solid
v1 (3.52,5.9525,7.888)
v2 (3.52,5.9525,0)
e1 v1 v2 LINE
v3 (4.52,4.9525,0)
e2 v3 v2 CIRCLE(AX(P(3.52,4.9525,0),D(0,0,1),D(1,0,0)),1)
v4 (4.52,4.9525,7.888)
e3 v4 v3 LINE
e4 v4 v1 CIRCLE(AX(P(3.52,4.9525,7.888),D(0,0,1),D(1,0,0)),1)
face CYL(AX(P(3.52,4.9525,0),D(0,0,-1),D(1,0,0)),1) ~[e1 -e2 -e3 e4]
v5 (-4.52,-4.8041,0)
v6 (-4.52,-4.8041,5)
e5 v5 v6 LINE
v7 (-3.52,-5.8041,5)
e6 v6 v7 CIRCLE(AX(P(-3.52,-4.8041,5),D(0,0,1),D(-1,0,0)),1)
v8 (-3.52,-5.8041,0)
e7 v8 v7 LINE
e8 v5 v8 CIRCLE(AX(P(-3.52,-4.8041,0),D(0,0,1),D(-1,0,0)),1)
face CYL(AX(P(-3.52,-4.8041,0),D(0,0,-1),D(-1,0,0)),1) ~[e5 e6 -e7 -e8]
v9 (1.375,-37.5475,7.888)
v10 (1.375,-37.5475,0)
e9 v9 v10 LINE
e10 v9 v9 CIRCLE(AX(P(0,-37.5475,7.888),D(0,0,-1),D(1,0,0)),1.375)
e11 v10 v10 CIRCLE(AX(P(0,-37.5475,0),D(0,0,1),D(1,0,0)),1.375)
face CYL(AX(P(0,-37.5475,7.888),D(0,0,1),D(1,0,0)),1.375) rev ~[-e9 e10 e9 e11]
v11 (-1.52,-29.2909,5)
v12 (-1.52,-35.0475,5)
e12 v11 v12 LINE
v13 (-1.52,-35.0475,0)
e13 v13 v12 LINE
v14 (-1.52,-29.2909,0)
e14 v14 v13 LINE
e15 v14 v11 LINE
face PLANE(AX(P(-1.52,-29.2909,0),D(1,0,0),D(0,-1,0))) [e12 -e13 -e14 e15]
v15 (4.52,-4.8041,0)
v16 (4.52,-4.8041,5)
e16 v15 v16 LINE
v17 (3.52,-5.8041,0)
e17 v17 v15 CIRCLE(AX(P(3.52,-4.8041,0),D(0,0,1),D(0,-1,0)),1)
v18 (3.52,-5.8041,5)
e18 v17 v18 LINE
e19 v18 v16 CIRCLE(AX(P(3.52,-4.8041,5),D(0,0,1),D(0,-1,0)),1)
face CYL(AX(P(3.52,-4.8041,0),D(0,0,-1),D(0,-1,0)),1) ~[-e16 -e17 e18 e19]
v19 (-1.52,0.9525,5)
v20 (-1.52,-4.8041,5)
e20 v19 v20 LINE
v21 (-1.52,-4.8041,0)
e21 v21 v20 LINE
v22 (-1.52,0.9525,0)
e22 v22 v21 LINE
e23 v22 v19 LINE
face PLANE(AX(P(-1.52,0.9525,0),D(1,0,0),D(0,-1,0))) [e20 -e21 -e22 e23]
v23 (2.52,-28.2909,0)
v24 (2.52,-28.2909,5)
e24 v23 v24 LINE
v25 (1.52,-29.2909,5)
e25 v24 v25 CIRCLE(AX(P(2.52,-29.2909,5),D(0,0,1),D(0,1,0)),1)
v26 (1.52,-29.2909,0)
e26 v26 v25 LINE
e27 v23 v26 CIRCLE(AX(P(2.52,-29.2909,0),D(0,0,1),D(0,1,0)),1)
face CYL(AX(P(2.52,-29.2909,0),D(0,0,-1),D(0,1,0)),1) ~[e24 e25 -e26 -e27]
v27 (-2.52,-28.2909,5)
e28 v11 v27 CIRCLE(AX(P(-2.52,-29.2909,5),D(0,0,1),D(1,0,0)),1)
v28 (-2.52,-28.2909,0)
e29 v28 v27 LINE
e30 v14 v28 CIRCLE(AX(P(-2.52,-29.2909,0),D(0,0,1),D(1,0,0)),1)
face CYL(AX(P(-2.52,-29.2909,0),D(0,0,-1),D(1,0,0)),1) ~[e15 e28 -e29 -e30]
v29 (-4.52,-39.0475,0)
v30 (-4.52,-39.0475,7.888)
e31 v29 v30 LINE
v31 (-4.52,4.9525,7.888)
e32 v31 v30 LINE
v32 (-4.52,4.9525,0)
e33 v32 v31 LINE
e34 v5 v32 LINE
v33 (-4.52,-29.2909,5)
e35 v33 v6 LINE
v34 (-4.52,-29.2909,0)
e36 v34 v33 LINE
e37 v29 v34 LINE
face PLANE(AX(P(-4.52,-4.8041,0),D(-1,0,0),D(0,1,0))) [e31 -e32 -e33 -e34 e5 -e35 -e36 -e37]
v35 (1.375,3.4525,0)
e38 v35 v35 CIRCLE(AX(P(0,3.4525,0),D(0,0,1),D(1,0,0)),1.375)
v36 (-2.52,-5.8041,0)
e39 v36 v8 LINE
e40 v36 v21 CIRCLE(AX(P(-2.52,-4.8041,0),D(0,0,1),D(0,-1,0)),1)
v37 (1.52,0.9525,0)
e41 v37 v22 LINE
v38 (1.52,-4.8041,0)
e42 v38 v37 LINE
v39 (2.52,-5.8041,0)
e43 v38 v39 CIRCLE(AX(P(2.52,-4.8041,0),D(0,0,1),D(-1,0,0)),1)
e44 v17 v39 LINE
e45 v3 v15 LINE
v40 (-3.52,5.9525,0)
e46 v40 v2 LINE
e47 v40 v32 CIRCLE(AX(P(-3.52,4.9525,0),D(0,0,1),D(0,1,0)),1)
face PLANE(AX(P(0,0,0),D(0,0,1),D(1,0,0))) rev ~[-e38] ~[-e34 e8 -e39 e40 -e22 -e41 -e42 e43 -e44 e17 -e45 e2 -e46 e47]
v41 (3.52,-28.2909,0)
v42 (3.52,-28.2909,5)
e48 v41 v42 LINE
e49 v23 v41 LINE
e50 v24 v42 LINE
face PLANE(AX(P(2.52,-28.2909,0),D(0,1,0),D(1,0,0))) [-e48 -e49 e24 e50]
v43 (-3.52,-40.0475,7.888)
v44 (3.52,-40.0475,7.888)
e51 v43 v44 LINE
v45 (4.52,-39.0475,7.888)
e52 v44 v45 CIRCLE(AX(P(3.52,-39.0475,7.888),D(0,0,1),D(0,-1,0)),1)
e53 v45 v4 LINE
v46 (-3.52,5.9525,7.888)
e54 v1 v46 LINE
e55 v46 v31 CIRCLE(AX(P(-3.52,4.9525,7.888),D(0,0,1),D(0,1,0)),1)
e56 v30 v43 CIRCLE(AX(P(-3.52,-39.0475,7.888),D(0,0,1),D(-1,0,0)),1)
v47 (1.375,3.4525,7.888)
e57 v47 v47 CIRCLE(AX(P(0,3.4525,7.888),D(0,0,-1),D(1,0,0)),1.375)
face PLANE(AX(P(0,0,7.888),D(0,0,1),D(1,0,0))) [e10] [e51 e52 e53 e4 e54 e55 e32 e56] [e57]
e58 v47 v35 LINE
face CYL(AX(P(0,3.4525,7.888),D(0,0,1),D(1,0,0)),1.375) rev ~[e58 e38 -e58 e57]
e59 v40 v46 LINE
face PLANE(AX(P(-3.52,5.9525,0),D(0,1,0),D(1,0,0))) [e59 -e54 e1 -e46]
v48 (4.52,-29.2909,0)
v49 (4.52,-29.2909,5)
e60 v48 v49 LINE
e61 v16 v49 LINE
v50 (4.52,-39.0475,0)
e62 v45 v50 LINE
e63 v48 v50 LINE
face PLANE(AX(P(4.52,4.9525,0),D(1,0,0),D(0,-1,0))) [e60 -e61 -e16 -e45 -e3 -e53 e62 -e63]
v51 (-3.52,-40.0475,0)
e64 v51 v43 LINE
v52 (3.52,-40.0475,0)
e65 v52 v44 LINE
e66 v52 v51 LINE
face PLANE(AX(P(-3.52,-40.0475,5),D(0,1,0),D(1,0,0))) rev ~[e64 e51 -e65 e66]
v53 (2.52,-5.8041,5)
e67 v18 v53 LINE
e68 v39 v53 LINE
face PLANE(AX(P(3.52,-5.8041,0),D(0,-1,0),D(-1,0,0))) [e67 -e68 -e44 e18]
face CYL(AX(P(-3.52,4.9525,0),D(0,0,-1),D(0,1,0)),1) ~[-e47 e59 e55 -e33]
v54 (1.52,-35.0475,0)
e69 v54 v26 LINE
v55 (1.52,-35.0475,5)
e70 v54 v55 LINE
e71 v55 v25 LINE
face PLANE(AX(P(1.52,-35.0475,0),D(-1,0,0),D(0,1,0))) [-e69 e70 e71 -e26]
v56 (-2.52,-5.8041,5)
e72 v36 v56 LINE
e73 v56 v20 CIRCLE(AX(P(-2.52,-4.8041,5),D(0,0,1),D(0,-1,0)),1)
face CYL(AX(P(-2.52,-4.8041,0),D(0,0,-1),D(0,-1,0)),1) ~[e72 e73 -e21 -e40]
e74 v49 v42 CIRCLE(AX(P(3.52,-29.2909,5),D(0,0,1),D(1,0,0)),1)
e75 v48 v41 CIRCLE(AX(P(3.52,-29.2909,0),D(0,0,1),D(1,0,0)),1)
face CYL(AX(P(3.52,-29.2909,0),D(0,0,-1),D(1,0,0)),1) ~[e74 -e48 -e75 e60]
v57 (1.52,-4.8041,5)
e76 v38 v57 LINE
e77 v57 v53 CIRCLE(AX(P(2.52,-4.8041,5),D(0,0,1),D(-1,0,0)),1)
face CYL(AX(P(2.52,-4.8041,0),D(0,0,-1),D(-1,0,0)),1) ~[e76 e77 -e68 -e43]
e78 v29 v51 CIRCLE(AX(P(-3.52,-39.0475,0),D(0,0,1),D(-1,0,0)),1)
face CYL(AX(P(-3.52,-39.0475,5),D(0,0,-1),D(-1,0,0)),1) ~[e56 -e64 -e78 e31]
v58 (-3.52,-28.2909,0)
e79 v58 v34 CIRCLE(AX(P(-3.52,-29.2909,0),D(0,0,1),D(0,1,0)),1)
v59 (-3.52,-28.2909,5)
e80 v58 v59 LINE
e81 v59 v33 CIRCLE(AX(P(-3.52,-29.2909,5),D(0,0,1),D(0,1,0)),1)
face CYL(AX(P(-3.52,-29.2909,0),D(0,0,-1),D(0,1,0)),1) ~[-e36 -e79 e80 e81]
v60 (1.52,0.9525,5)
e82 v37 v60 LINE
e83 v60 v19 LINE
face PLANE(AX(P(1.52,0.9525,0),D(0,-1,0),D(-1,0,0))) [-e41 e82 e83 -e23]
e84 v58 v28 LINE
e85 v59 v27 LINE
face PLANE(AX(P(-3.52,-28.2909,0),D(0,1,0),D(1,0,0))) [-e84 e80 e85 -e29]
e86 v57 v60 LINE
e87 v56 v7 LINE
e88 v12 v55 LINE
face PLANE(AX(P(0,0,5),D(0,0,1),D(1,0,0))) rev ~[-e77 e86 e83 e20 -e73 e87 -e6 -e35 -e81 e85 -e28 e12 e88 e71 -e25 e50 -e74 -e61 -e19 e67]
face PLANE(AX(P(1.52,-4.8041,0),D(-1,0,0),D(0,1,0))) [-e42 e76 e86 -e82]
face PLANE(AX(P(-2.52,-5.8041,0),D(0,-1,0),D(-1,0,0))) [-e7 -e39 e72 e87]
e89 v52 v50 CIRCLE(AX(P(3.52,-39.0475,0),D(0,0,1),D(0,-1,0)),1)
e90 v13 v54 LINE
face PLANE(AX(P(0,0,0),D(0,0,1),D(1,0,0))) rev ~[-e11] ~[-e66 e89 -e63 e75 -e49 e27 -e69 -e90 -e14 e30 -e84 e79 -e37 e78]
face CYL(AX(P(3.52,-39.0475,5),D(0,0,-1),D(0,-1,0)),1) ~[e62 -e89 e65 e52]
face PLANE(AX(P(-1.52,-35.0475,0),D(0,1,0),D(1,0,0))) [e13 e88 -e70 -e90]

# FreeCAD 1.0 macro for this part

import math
import FreeCAD as App
import Part
import Sketcher

V = App.Vector
Q = App.Units.Quantity

doc = App.newDocument("Part")
body = doc.addObject("PartDesign::Body", "Body")
body.AllowCompound = True

# Sketch on XY plane
sketch1 = body.newObject("Sketcher::SketchObject", "Sketch")
sketch1.AttachmentSupport = (doc.getObject("XY_Plane"), [""])
sketch1.MapMode = "FlatFace"
sketch1.addGeometry(Part.LineSegment(V(3.5, 6, 0), V(-3.5, 6, 0)), False)
sketch1.addGeometry(Part.ArcOfCircle(Part.Circle(V(-3.5, 5, 0), V(0, 0, 1), 1), math.radians(90), math.radians(180)), False)
sketch1.addGeometry(Part.LineSegment(V(-4.5, 5, 0), V(-4.5, -4.8, 0)), False)
sketch1.addGeometry(Part.ArcOfCircle(Part.Circle(V(-3.5, -4.8, 0), V(0, 0, 1), 1), math.radians(180), math.radians(270)), False)
sketch1.addGeometry(Part.LineSegment(V(-3.5, -5.8, 0), V(-2.5, -5.8, 0)), False)
sketch1.addGeometry(Part.ArcOfCircle(Part.Circle(V(-2.5, -4.8, 0), V(0, 0, 1), 1), math.radians(-90), math.radians(0)), False)
sketch1.addGeometry(Part.LineSegment(V(-1.5, -4.8, 0), V(-1.5, 1, 0)), False)
sketch1.addGeometry(Part.LineSegment(V(-1.5, 1, 0), V(1.5, 1, 0)), False)
sketch1.addGeometry(Part.LineSegment(V(1.5, 1, 0), V(1.5, -4.8, 0)), False)
sketch1.addGeometry(Part.ArcOfCircle(Part.Circle(V(2.5, -4.8, 0), V(0, 0, 1), 1), math.radians(180), math.radians(270)), False)
sketch1.addGeometry(Part.LineSegment(V(2.5, -5.8, 0), V(3.5, -5.8, 0)), False)
sketch1.addGeometry(Part.ArcOfCircle(Part.Circle(V(3.5, -4.8, 0), V(0, 0, 1), 1), math.radians(-90), math.radians(0)), False)
sketch1.addGeometry(Part.LineSegment(V(4.5, -4.8, 0), V(4.5, 5, 0)), False)
sketch1.addGeometry(Part.ArcOfCircle(Part.Circle(V(3.5, 5, 0), V(0, 0, 1), 1), math.radians(0), math.radians(90)), False)
sketch1.addGeometry(Part.LineSegment(V(3.5, -28.3, 0), V(2.5, -28.3, 0)), False)
sketch1.addGeometry(Part.ArcOfCircle(Part.Circle(V(2.5, -29.3, 0), V(0, 0, 1), 1), math.radians(90), math.radians(180)), False)
sketch1.addGeometry(Part.LineSegment(V(1.5, -29.3, 0), V(1.5, -35, 0)), False)
sketch1.addGeometry(Part.LineSegment(V(1.5, -35, 0), V(-1.5, -35, 0)), False)
sketch1.addGeometry(Part.LineSegment(V(-1.5, -35, 0), V(-1.5, -29.3, 0)), False)
sketch1.addGeometry(Part.ArcOfCircle(Part.Circle(V(-2.5, -29.3, 0), V(0, 0, 1), 1), math.radians(0), math.radians(90)), False)
sketch1.addGeometry(Part.LineSegment(V(-2.5, -28.3, 0), V(-3.5, -28.3, 0)), False)
sketch1.addGeometry(Part.ArcOfCircle(Part.Circle(V(-3.5, -29.3, 0), V(0, 0, 1), 1), math.radians(90), math.radians(180)), False)
sketch1.addGeometry(Part.LineSegment(V(-4.5, -29.3, 0), V(-4.5, -39, 0)), False)
sketch1.addGeometry(Part.ArcOfCircle(Part.Circle(V(-3.5, -39, 0), V(0, 0, 1), 1), math.radians(180), math.radians(270)), False)
sketch1.addGeometry(Part.LineSegment(V(-3.5, -40, 0), V(3.5, -40, 0)), False)
sketch1.addGeometry(Part.ArcOfCircle(Part.Circle(V(3.5, -39, 0), V(0, 0, 1), 1), math.radians(-90), math.radians(0)), False)
sketch1.addGeometry(Part.LineSegment(V(4.5, -39, 0), V(4.5, -29.3, 0)), False)
sketch1.addGeometry(Part.ArcOfCircle(Part.Circle(V(3.5, -29.3, 0), V(0, 0, 1), 1), math.radians(0), math.radians(90)), False)
sketch1.addConstraint(Sketcher.Constraint("Tangent", 0, 2, 1, 1))
sketch1.addConstraint(Sketcher.Constraint("Tangent", 1, 2, 2, 1))
sketch1.addConstraint(Sketcher.Constraint("Tangent", 2, 2, 3, 1))
sketch1.addConstraint(Sketcher.Constraint("Tangent", 3, 2, 4, 1))
sketch1.addConstraint(Sketcher.Constraint("Tangent", 4, 2, 5, 1))
sketch1.addConstraint(Sketcher.Constraint("Tangent", 5, 2, 6, 1))
sketch1.addConstraint(Sketcher.Constraint("Coincident", 6, 2, 7, 1))
sketch1.addConstraint(Sketcher.Constraint("Coincident", 7, 2, 8, 1))
sketch1.addConstraint(Sketcher.Constraint("Tangent", 8, 2, 9, 1))
sketch1.addConstraint(Sketcher.Constraint("Tangent", 9, 2, 10, 1))
sketch1.addConstraint(Sketcher.Constraint("Tangent", 10, 2, 11, 1))
sketch1.addConstraint(Sketcher.Constraint("Tangent", 11, 2, 12, 1))
sketch1.addConstraint(Sketcher.Constraint("Tangent", 12, 2, 13, 1))
sketch1.addConstraint(Sketcher.Constraint("Tangent", 13, 2, 0, 1))
sketch1.addConstraint(Sketcher.Constraint("Tangent", 14, 2, 15, 1))
sketch1.addConstraint(Sketcher.Constraint("Tangent", 15, 2, 16, 1))
sketch1.addConstraint(Sketcher.Constraint("Coincident", 16, 2, 17, 1))
sketch1.addConstraint(Sketcher.Constraint("Coincident", 17, 2, 18, 1))
sketch1.addConstraint(Sketcher.Constraint("Tangent", 18, 2, 19, 1))
sketch1.addConstraint(Sketcher.Constraint("Tangent", 19, 2, 20, 1))
sketch1.addConstraint(Sketcher.Constraint("Tangent", 20, 2, 21, 1))
sketch1.addConstraint(Sketcher.Constraint("Tangent", 21, 2, 22, 1))
sketch1.addConstraint(Sketcher.Constraint("Tangent", 22, 2, 23, 1))
sketch1.addConstraint(Sketcher.Constraint("Tangent", 23, 2, 24, 1))
sketch1.addConstraint(Sketcher.Constraint("Tangent", 24, 2, 25, 1))
sketch1.addConstraint(Sketcher.Constraint("Tangent", 25, 2, 26, 1))
sketch1.addConstraint(Sketcher.Constraint("Tangent", 26, 2, 27, 1))
sketch1.addConstraint(Sketcher.Constraint("Tangent", 27, 2, 14, 1))
sketch1.addConstraint(Sketcher.Constraint("Horizontal", 0))
sketch1.addConstraint(Sketcher.Constraint("Vertical", 2))
sketch1.addConstraint(Sketcher.Constraint("Horizontal", 4))
sketch1.addConstraint(Sketcher.Constraint("Vertical", 6))
sketch1.addConstraint(Sketcher.Constraint("Horizontal", 7))
sketch1.addConstraint(Sketcher.Constraint("Vertical", 8))
sketch1.addConstraint(Sketcher.Constraint("Horizontal", 10))
sketch1.addConstraint(Sketcher.Constraint("Vertical", 12))
sketch1.addConstraint(Sketcher.Constraint("Horizontal", 14))
sketch1.addConstraint(Sketcher.Constraint("Vertical", 16))
sketch1.addConstraint(Sketcher.Constraint("Horizontal", 17))
sketch1.addConstraint(Sketcher.Constraint("Vertical", 18))
sketch1.addConstraint(Sketcher.Constraint("Horizontal", 20))
sketch1.addConstraint(Sketcher.Constraint("Vertical", 22))
sketch1.addConstraint(Sketcher.Constraint("Horizontal", 24))
sketch1.addConstraint(Sketcher.Constraint("Vertical", 26))
sketch1.addConstraint(Sketcher.Constraint("Equal", 1, 3))
sketch1.addConstraint(Sketcher.Constraint("Equal", 3, 5))
sketch1.addConstraint(Sketcher.Constraint("Equal", 5, 9))
sketch1.addConstraint(Sketcher.Constraint("Equal", 9, 11))
sketch1.addConstraint(Sketcher.Constraint("Equal", 11, 13))
sketch1.addConstraint(Sketcher.Constraint("Equal", 13, 15))
sketch1.addConstraint(Sketcher.Constraint("Equal", 15, 19))
sketch1.addConstraint(Sketcher.Constraint("Equal", 19, 21))
sketch1.addConstraint(Sketcher.Constraint("Equal", 21, 23))
sketch1.addConstraint(Sketcher.Constraint("Equal", 23, 25))
sketch1.addConstraint(Sketcher.Constraint("Equal", 25, 27))
sketch1.addConstraint(Sketcher.Constraint("Symmetric", 5, 3, 9, 3, -2))
sketch1.addConstraint(Sketcher.Constraint("Symmetric", 15, 3, 19, 3, -2))
sketch1.addConstraint(Sketcher.Constraint("Vertical", 9, 3, 15, 3))
sketch1.addConstraint(Sketcher.Constraint("Vertical", 3, 3, 21, 3))
sketch1.addConstraint(Sketcher.Constraint("Vertical", 13, 3, 25, 3))
sketch1.addConstraint(Sketcher.Constraint("Equal", 4, 10))
sketch1.addConstraint(Sketcher.Constraint("Equal", 8, 16))
sketch1.addConstraint(Sketcher.Constraint("Equal", 12, 22))
sketch1.addConstraint(Sketcher.Constraint("Radius", 1, Q("1 mm")))
sketch1.addConstraint(Sketcher.Constraint("DistanceX", 4, 1, 4, 2, Q("1 mm")))
sketch1.addConstraint(Sketcher.Constraint("DistanceY", 6, 2, 1, 3, Q("4 mm")))
sketch1.addConstraint(Sketcher.Constraint("DistanceX", 0, 2, 0, 1, Q("7.04 mm")))
sketch1.addConstraint(Sketcher.Constraint("DistanceY", 2, 2, 2, 1, Q("9.7566 mm")))
sketch1.addConstraint(Sketcher.Constraint("DistanceY", 3, 3, -1, 1, Q("4.804 mm")))
sketch1.addConstraint(Sketcher.Constraint("DistanceY", 15, 3, -1, 1, Q("29.291 mm")))
pad1 = body.newObject("PartDesign::Pad", "Pad")
pad1.Profile = sketch1
pad1.Length = 5

# Sketch on XY plane
sketch2 = body.newObject("Sketcher::SketchObject", "Sketch001")
sketch2.AttachmentSupport = (doc.getObject("XY_Plane"), [""])
sketch2.MapMode = "FlatFace"
sketch2.AttachmentOffset = App.Placement(V(0, 0, 5), App.Rotation())
sketch2.addGeometry(Part.LineSegment(V(3.5, 6, 0), V(-3.5, 6, 0)), False)
sketch2.addGeometry(Part.ArcOfCircle(Part.Circle(V(-3.5, 5, 0), V(0, 0, 1), 1), math.radians(90), math.radians(180)), False)
sketch2.addGeometry(Part.LineSegment(V(-4.5, 5, 0), V(-4.5, -39, 0)), False)
sketch2.addGeometry(Part.ArcOfCircle(Part.Circle(V(-3.5, -39, 0), V(0, 0, 1), 1), math.radians(180), math.radians(270)), False)
sketch2.addGeometry(Part.LineSegment(V(-3.5, -40, 0), V(3.5, -40, 0)), False)
sketch2.addGeometry(Part.ArcOfCircle(Part.Circle(V(3.5, -39, 0), V(0, 0, 1), 1), math.radians(-90), math.radians(0)), False)
sketch2.addGeometry(Part.LineSegment(V(4.5, -39, 0), V(4.5, 5, 0)), False)
sketch2.addGeometry(Part.ArcOfCircle(Part.Circle(V(3.5, 5, 0), V(0, 0, 1), 1), math.radians(0), math.radians(90)), False)
sketch2.addConstraint(Sketcher.Constraint("Tangent", 0, 2, 1, 1))
sketch2.addConstraint(Sketcher.Constraint("Tangent", 1, 2, 2, 1))
sketch2.addConstraint(Sketcher.Constraint("Tangent", 2, 2, 3, 1))
sketch2.addConstraint(Sketcher.Constraint("Tangent", 3, 2, 4, 1))
sketch2.addConstraint(Sketcher.Constraint("Tangent", 4, 2, 5, 1))
sketch2.addConstraint(Sketcher.Constraint("Tangent", 5, 2, 6, 1))
sketch2.addConstraint(Sketcher.Constraint("Tangent", 6, 2, 7, 1))
sketch2.addConstraint(Sketcher.Constraint("Tangent", 7, 2, 0, 1))
sketch2.addConstraint(Sketcher.Constraint("Horizontal", 0))
sketch2.addConstraint(Sketcher.Constraint("Vertical", 2))
sketch2.addConstraint(Sketcher.Constraint("Horizontal", 4))
sketch2.addConstraint(Sketcher.Constraint("Vertical", 6))
sketch2.addConstraint(Sketcher.Constraint("Equal", 1, 3))
sketch2.addConstraint(Sketcher.Constraint("Equal", 3, 5))
sketch2.addConstraint(Sketcher.Constraint("Equal", 5, 7))
sketch2.addConstraint(Sketcher.Constraint("Radius", 1, Q("1 mm")))
sketch2.addConstraint(Sketcher.Constraint("DistanceY", 2, 2, 2, 1, Q("44 mm")))
sketch2.addConstraint(Sketcher.Constraint("DistanceX", 0, 2, 0, 1, Q("7.04 mm")))
sketch2.addConstraint(Sketcher.Constraint("DistanceX", 1, 3, -1, 1, Q("3.52 mm")))
sketch2.addConstraint(Sketcher.Constraint("DistanceY", -1, 1, 1, 3, Q("4.9525 mm")))
pad2 = body.newObject("PartDesign::Pad", "Pad001")
pad2.Profile = sketch2
pad2.Length = 2.888

# Sketch on XY plane
sketch3 = body.newObject("Sketcher::SketchObject", "Sketch002")
sketch3.AttachmentSupport = (doc.getObject("XY_Plane"), [""])
sketch3.MapMode = "FlatFace"
sketch3.AttachmentOffset = App.Placement(V(0, 0, 7.888), App.Rotation())
sketch3.addGeometry(Part.Circle(V(0, -37.5, 0), V(0, 0, 1), 1.4), False)
sketch3.addGeometry(Part.Circle(V(0, 3.5, 0), V(0, 0, 1), 1.4), False)
sketch3.addConstraint(Sketcher.Constraint("Equal", 0, 1))
sketch3.addConstraint(Sketcher.Constraint("PointOnObject", 0, 3, -2))
sketch3.addConstraint(Sketcher.Constraint("PointOnObject", 1, 3, -2))
sketch3.addConstraint(Sketcher.Constraint("Diameter", 0, Q("2.75 mm")))
sketch3.addConstraint(Sketcher.Constraint("DistanceY", 0, 3, 1, 3, Q("41 mm")))
sketch3.addConstraint(Sketcher.Constraint("DistanceY", 0, 3, -1, 1, Q("37.5475 mm")))
pocket1 = body.newObject("PartDesign::Pocket", "Pocket")
pocket1.Profile = sketch3
pocket1.Length = 100

doc.recompute()
